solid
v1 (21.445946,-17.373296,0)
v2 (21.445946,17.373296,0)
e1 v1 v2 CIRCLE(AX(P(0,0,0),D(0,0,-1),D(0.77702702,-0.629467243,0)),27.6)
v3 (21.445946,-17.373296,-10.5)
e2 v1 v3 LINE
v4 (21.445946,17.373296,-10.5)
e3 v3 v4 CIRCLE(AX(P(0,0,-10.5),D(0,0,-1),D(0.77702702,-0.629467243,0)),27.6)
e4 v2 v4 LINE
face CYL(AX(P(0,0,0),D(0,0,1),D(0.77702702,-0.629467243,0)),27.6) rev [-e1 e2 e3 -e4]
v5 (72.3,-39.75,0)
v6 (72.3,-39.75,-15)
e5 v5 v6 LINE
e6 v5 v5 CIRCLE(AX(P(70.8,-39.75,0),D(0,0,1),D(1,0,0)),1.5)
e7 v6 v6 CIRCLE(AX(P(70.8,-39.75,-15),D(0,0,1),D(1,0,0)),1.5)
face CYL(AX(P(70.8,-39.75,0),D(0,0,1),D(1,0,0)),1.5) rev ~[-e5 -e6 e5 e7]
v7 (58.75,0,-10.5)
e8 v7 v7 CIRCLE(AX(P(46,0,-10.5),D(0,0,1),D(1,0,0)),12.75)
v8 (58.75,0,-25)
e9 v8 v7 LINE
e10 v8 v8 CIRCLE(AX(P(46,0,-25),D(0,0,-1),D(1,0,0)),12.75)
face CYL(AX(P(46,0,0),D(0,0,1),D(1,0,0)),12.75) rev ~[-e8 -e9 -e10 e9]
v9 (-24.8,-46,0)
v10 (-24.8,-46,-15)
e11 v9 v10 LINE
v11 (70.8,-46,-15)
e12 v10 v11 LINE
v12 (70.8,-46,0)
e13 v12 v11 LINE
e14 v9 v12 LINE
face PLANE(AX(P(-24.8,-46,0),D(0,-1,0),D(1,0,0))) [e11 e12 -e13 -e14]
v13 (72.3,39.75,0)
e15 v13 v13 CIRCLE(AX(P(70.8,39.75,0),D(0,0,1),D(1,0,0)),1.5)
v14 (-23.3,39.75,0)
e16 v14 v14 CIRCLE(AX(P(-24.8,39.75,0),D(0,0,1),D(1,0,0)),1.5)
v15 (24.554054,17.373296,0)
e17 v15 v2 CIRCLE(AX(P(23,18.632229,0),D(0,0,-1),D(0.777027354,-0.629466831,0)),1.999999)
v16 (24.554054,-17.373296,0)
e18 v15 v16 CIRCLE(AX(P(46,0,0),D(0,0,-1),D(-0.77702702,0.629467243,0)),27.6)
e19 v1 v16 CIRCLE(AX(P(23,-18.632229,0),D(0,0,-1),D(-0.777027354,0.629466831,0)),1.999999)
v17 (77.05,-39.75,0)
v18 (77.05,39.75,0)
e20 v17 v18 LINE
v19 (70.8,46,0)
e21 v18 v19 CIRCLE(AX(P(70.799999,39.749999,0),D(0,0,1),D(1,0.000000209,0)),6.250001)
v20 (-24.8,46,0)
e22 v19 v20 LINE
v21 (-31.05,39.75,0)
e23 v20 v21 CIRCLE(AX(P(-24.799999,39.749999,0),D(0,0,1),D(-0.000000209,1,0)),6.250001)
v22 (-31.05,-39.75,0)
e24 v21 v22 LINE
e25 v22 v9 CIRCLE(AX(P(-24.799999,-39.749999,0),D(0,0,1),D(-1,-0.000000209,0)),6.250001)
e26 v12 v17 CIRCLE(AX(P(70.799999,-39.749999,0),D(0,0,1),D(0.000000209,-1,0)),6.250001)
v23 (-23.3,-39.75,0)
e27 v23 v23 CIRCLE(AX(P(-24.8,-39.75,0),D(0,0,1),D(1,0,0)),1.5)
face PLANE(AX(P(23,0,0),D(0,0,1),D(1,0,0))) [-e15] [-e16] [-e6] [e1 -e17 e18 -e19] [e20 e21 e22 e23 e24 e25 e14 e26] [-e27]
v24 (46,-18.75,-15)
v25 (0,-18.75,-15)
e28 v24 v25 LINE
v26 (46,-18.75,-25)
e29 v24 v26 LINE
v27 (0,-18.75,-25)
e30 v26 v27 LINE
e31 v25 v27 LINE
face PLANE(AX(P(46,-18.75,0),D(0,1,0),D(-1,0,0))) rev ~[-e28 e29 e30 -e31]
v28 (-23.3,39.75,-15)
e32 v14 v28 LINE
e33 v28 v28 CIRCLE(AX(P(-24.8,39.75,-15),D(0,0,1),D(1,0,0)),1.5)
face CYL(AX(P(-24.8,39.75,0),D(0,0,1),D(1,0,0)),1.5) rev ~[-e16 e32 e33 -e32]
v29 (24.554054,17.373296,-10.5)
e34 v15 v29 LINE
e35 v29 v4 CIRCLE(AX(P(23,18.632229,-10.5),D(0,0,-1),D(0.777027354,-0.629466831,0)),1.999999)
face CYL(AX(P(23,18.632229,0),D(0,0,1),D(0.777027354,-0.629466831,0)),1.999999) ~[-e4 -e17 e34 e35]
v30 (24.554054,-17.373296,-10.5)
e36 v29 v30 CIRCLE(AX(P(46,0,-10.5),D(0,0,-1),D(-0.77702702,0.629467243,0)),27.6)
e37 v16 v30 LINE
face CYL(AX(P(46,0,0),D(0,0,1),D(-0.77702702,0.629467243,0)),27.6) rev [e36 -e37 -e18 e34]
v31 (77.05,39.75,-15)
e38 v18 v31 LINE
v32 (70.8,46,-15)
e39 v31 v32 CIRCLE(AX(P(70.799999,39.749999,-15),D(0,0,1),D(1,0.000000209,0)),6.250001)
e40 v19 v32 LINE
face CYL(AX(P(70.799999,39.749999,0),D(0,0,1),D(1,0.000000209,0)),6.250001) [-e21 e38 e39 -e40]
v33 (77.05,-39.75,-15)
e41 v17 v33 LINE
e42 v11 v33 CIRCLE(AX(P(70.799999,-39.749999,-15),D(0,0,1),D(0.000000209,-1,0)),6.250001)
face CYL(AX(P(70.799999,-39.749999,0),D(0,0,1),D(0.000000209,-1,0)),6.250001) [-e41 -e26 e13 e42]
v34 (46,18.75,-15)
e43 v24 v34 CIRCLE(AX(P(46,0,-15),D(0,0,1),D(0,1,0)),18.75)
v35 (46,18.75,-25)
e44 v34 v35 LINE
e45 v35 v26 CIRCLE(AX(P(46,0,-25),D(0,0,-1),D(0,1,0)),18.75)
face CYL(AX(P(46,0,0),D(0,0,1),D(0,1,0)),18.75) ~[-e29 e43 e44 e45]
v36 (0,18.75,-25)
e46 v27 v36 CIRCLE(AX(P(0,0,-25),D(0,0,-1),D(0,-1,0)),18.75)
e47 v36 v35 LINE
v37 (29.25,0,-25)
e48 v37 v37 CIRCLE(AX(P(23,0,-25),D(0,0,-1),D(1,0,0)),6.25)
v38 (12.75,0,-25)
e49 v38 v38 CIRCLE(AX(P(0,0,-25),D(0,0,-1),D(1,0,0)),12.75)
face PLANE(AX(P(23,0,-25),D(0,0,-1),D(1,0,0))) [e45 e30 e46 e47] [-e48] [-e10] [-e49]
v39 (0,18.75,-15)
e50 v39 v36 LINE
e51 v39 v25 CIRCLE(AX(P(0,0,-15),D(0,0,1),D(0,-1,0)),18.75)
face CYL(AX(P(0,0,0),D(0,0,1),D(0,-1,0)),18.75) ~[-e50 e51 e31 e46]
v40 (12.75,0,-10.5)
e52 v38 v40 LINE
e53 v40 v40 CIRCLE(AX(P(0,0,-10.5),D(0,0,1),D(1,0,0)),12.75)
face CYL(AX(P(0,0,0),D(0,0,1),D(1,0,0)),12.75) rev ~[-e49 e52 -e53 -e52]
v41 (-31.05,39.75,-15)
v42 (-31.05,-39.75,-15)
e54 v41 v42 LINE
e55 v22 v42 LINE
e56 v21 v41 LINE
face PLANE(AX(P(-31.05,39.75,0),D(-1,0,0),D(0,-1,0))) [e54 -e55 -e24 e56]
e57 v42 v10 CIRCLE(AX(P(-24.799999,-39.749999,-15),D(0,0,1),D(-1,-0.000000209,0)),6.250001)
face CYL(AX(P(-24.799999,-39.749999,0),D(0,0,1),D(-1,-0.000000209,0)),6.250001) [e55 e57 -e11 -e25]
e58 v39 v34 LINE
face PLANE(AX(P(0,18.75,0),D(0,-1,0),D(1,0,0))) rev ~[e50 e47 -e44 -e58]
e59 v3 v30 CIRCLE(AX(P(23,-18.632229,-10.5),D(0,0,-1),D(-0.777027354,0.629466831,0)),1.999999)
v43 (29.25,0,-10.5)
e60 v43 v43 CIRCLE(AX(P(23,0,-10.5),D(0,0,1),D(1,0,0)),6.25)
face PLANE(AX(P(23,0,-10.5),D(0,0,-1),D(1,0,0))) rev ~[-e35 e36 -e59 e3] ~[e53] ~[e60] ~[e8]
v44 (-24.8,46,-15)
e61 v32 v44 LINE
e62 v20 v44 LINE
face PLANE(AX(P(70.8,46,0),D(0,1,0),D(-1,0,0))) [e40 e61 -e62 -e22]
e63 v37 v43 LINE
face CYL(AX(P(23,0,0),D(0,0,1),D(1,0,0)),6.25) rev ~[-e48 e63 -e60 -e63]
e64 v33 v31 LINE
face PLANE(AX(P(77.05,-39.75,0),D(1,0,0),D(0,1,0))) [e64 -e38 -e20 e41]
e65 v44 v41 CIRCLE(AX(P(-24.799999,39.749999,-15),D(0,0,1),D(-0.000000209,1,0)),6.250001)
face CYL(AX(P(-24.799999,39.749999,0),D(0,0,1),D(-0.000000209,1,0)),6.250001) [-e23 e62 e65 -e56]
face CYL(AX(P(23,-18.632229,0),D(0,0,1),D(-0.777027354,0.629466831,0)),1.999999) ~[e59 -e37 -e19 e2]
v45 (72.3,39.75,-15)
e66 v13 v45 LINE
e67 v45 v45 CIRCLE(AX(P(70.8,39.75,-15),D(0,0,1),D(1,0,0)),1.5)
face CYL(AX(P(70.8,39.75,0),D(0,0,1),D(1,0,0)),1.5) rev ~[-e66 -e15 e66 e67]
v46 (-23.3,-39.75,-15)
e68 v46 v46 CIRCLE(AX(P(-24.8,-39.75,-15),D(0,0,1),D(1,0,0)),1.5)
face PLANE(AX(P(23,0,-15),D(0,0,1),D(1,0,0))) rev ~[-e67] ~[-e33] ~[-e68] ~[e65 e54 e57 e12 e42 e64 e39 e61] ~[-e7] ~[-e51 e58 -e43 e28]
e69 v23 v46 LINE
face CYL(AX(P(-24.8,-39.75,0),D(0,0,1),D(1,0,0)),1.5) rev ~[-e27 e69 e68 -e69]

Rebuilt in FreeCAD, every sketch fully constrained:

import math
import FreeCAD as App
import Part
import Sketcher
Q = App.Units.Quantity

doc = App.newDocument("Part")
body = doc.addObject("PartDesign::Body", "Body")

sketch1 = doc.addObject("Sketcher::SketchObject", "Sketch")
body.addObject(sketch1)
sketch1.AttachmentSupport = (doc.XY_Plane, [""])
sketch1.MapMode = "FlatFace"
sketch1.addGeometry([
    Part.ArcOfCircle(Part.Circle(App.Vector(-24.8, 39.7, 0), App.Vector(0, 0, 1), 6.3), math.radians(90), math.radians(180)),
    Part.LineSegment(App.Vector(-31.1, 39.8, 0), App.Vector(-31.1, -39.8, 0)),
    Part.ArcOfCircle(Part.Circle(App.Vector(-24.8, -39.7, 0), App.Vector(0, 0, 1), 6.3), math.radians(-180), math.radians(-90)),
    Part.LineSegment(App.Vector(-24.8, -46, 0), App.Vector(70.8, -46, 0)),
    Part.ArcOfCircle(Part.Circle(App.Vector(70.8, -39.7, 0), App.Vector(0, 0, 1), 6.3), math.radians(-90), math.radians(0)),
    Part.LineSegment(App.Vector(77, -39.8, 0), App.Vector(77, 39.8, 0)),
    Part.ArcOfCircle(Part.Circle(App.Vector(70.8, 39.7, 0), App.Vector(0, 0, 1), 6.3), math.radians(0), math.radians(90)),
    Part.LineSegment(App.Vector(70.8, 46, 0), App.Vector(-24.8, 46, 0)),
    Part.Circle(App.Vector(-24.8, -39.8, 0), App.Vector(0, 0, 1), 1.5),
    Part.Circle(App.Vector(70.8, -39.8, 0), App.Vector(0, 0, 1), 1.5),
    Part.Circle(App.Vector(0, 0, 0), App.Vector(0, 0, 1), 12.8),
    Part.Circle(App.Vector(-24.8, 39.8, 0), App.Vector(0, 0, 1), 1.5),
    Part.Circle(App.Vector(23, 0, 0), App.Vector(0, 0, 1), 6.2),
    Part.Circle(App.Vector(46, 0, 0), App.Vector(0, 0, 1), 12.8),
    Part.Circle(App.Vector(70.8, 39.8, 0), App.Vector(0, 0, 1), 1.5),
], False)
sketch1.addConstraint([
    Sketcher.Constraint("Tangent", 0, 2, 1, 1),
    Sketcher.Constraint("Tangent", 1, 2, 2, 1),
    Sketcher.Constraint("Tangent", 2, 2, 3, 1),
    Sketcher.Constraint("Tangent", 3, 2, 4, 1),
    Sketcher.Constraint("Tangent", 4, 2, 5, 1),
    Sketcher.Constraint("Tangent", 5, 2, 6, 1),
    Sketcher.Constraint("Tangent", 6, 2, 7, 1),
    Sketcher.Constraint("Tangent", 7, 2, 0, 1),
    Sketcher.Constraint("Vertical", 1),
    Sketcher.Constraint("Horizontal", 3),
    Sketcher.Constraint("Vertical", 5),
    Sketcher.Constraint("Horizontal", 7),
    Sketcher.Constraint("Coincident", 10, 3, -1, 1),
    Sketcher.Constraint("Coincident", 8, 3, 2, 3),
    Sketcher.Constraint("Coincident", 9, 3, 4, 3),
    Sketcher.Constraint("Coincident", 11, 3, 0, 3),
    Sketcher.Constraint("Coincident", 14, 3, 6, 3),
    Sketcher.Constraint("Equal", 0, 2),
    Sketcher.Constraint("Equal", 2, 4),
    Sketcher.Constraint("Equal", 4, 6),
    Sketcher.Constraint("Equal", 8, 9),
    Sketcher.Constraint("Equal", 9, 11),
    Sketcher.Constraint("Equal", 6, 12),
    Sketcher.Constraint("Equal", 10, 13),
    Sketcher.Constraint("Equal", 11, 14),
    Sketcher.Constraint("PointOnObject", 12, 3, -1),
    Sketcher.Constraint("PointOnObject", 13, 3, -1),
    Sketcher.Constraint("Diameter", 8, Q("3 mm")),
    Sketcher.Constraint("Diameter", 10, Q("25.5 mm")),
    Sketcher.Constraint("Diameter", 12, Q("12.5 mm")),
    Sketcher.Constraint("DistanceX", 3, 1, 3, 2, Q("95.6 mm")),
    Sketcher.Constraint("DistanceY", 1, 2, 1, 1, Q("79.5 mm")),
    Sketcher.Constraint("DistanceX", -1, 1, 12, 3, Q("23 mm")),
    Sketcher.Constraint("DistanceX", -1, 1, 13, 3, Q("46 mm")),
    Sketcher.Constraint("DistanceY", 2, 2, -1, 1, Q("46 mm")),
    Sketcher.Constraint("DistanceX", 0, 3, -1, 1, Q("24.799999 mm")),
])
pad1 = doc.addObject("PartDesign::Pad", "Pad")
body.addObject(pad1)
pad1.Profile = sketch1
pad1.Length = 15
pad1.Reversed = True

sketch2 = doc.addObject("Sketcher::SketchObject", "Sketch001")
body.addObject(sketch2)
sketch2.AttachmentSupport = (doc.XY_Plane, [""])
sketch2.MapMode = "FlatFace"
sketch2.addGeometry([
    Part.ArcOfCircle(Part.Circle(App.Vector(0, 0, 0), App.Vector(0, 0, 1), 19), math.radians(90), math.radians(270)),
    Part.LineSegment(App.Vector(0, 19, 0), App.Vector(46, 19, 0)),
    Part.ArcOfCircle(Part.Circle(App.Vector(46, 0, 0), App.Vector(0, 0, 1), 19), math.radians(-90), math.radians(90)),
    Part.LineSegment(App.Vector(46, -19, 0), App.Vector(0, -19, 0)),
    Part.Circle(App.Vector(0, 0, 0), App.Vector(0, 0, 1), 13),
    Part.Circle(App.Vector(23, 0, 0), App.Vector(0, 0, 1), 6),
    Part.Circle(App.Vector(46, 0, 0), App.Vector(0, 0, 1), 13),
], False)
sketch2.addConstraint([
    Sketcher.Constraint("Tangent", 0, 1, 1, 1),
    Sketcher.Constraint("Tangent", 1, 2, 2, 2),
    Sketcher.Constraint("Tangent", 2, 1, 3, 1),
    Sketcher.Constraint("Tangent", 3, 2, 0, 2),
    Sketcher.Constraint("Horizontal", 1),
    Sketcher.Constraint("Horizontal", 3),
    Sketcher.Constraint("Coincident", 0, 3, -1, 1),
    Sketcher.Constraint("Coincident", 4, 3, -1, 1),
    Sketcher.Constraint("Coincident", 6, 3, 2, 3),
    Sketcher.Constraint("Equal", 4, 6),
    Sketcher.Constraint("PointOnObject", 5, 3, -1),
    Sketcher.Constraint("Diameter", 4, Q("25.5 mm")),
    Sketcher.Constraint("Diameter", 5, Q("12.5 mm")),
    Sketcher.Constraint("DistanceX", 1, 1, 1, 2, Q("46 mm")),
    Sketcher.Constraint("Radius", 0, Q("18.75 mm")),
    Sketcher.Constraint("DistanceX", -1, 1, 5, 3, Q("23 mm")),
])
pad2 = doc.addObject("PartDesign::Pad", "Pad001")
body.addObject(pad2)
pad2.Profile = sketch2
pad2.Length = 25
pad2.Reversed = True

sketch3 = doc.addObject("Sketcher::SketchObject", "Sketch002")
body.addObject(sketch3)
sketch3.AttachmentSupport = (doc.XY_Plane, [""])
sketch3.MapMode = "FlatFace"
sketch3.addGeometry([
    Part.ArcOfCircle(Part.Circle(App.Vector(0, 0, 0), App.Vector(0, 0, 1), 27.6), math.radians(39), math.radians(321)),
    Part.ArcOfCircle(Part.Circle(App.Vector(23, 18.6, 0), App.Vector(0, 0, 1), 2), math.radians(-141), math.radians(-39)),
    Part.ArcOfCircle(Part.Circle(App.Vector(46, 0, 0), App.Vector(0, 0, 1), 27.6), math.radians(-141), math.radians(141)),
    Part.ArcOfCircle(Part.Circle(App.Vector(23, -18.6, 0), App.Vector(0, 0, 1), 2), math.radians(39), math.radians(141)),
], False)
sketch3.addConstraint([
    Sketcher.Constraint("Tangent", 0, 1, 1, 1),
    Sketcher.Constraint("Tangent", 1, 2, 2, 2),
    Sketcher.Constraint("Tangent", 2, 1, 3, 1),
    Sketcher.Constraint("Tangent", 3, 2, 0, 2),
    Sketcher.Constraint("Coincident", 0, 3, -1, 1),
    Sketcher.Constraint("Equal", 0, 2),
    Sketcher.Constraint("Equal", 1, 3),
    Sketcher.Constraint("PointOnObject", 2, 3, -1),
    Sketcher.Constraint("Radius", 1, Q("1.999999 mm")),
    Sketcher.Constraint("Radius", 0, Q("27.6 mm")),
    Sketcher.Constraint("DistanceX", -1, 1, 1, 3, Q("23 mm")),
])
pocket1 = doc.addObject("PartDesign::Pocket", "Pocket")
body.addObject(pocket1)
pocket1.Profile = sketch3
pocket1.Length = 10.5

doc.recompute()
